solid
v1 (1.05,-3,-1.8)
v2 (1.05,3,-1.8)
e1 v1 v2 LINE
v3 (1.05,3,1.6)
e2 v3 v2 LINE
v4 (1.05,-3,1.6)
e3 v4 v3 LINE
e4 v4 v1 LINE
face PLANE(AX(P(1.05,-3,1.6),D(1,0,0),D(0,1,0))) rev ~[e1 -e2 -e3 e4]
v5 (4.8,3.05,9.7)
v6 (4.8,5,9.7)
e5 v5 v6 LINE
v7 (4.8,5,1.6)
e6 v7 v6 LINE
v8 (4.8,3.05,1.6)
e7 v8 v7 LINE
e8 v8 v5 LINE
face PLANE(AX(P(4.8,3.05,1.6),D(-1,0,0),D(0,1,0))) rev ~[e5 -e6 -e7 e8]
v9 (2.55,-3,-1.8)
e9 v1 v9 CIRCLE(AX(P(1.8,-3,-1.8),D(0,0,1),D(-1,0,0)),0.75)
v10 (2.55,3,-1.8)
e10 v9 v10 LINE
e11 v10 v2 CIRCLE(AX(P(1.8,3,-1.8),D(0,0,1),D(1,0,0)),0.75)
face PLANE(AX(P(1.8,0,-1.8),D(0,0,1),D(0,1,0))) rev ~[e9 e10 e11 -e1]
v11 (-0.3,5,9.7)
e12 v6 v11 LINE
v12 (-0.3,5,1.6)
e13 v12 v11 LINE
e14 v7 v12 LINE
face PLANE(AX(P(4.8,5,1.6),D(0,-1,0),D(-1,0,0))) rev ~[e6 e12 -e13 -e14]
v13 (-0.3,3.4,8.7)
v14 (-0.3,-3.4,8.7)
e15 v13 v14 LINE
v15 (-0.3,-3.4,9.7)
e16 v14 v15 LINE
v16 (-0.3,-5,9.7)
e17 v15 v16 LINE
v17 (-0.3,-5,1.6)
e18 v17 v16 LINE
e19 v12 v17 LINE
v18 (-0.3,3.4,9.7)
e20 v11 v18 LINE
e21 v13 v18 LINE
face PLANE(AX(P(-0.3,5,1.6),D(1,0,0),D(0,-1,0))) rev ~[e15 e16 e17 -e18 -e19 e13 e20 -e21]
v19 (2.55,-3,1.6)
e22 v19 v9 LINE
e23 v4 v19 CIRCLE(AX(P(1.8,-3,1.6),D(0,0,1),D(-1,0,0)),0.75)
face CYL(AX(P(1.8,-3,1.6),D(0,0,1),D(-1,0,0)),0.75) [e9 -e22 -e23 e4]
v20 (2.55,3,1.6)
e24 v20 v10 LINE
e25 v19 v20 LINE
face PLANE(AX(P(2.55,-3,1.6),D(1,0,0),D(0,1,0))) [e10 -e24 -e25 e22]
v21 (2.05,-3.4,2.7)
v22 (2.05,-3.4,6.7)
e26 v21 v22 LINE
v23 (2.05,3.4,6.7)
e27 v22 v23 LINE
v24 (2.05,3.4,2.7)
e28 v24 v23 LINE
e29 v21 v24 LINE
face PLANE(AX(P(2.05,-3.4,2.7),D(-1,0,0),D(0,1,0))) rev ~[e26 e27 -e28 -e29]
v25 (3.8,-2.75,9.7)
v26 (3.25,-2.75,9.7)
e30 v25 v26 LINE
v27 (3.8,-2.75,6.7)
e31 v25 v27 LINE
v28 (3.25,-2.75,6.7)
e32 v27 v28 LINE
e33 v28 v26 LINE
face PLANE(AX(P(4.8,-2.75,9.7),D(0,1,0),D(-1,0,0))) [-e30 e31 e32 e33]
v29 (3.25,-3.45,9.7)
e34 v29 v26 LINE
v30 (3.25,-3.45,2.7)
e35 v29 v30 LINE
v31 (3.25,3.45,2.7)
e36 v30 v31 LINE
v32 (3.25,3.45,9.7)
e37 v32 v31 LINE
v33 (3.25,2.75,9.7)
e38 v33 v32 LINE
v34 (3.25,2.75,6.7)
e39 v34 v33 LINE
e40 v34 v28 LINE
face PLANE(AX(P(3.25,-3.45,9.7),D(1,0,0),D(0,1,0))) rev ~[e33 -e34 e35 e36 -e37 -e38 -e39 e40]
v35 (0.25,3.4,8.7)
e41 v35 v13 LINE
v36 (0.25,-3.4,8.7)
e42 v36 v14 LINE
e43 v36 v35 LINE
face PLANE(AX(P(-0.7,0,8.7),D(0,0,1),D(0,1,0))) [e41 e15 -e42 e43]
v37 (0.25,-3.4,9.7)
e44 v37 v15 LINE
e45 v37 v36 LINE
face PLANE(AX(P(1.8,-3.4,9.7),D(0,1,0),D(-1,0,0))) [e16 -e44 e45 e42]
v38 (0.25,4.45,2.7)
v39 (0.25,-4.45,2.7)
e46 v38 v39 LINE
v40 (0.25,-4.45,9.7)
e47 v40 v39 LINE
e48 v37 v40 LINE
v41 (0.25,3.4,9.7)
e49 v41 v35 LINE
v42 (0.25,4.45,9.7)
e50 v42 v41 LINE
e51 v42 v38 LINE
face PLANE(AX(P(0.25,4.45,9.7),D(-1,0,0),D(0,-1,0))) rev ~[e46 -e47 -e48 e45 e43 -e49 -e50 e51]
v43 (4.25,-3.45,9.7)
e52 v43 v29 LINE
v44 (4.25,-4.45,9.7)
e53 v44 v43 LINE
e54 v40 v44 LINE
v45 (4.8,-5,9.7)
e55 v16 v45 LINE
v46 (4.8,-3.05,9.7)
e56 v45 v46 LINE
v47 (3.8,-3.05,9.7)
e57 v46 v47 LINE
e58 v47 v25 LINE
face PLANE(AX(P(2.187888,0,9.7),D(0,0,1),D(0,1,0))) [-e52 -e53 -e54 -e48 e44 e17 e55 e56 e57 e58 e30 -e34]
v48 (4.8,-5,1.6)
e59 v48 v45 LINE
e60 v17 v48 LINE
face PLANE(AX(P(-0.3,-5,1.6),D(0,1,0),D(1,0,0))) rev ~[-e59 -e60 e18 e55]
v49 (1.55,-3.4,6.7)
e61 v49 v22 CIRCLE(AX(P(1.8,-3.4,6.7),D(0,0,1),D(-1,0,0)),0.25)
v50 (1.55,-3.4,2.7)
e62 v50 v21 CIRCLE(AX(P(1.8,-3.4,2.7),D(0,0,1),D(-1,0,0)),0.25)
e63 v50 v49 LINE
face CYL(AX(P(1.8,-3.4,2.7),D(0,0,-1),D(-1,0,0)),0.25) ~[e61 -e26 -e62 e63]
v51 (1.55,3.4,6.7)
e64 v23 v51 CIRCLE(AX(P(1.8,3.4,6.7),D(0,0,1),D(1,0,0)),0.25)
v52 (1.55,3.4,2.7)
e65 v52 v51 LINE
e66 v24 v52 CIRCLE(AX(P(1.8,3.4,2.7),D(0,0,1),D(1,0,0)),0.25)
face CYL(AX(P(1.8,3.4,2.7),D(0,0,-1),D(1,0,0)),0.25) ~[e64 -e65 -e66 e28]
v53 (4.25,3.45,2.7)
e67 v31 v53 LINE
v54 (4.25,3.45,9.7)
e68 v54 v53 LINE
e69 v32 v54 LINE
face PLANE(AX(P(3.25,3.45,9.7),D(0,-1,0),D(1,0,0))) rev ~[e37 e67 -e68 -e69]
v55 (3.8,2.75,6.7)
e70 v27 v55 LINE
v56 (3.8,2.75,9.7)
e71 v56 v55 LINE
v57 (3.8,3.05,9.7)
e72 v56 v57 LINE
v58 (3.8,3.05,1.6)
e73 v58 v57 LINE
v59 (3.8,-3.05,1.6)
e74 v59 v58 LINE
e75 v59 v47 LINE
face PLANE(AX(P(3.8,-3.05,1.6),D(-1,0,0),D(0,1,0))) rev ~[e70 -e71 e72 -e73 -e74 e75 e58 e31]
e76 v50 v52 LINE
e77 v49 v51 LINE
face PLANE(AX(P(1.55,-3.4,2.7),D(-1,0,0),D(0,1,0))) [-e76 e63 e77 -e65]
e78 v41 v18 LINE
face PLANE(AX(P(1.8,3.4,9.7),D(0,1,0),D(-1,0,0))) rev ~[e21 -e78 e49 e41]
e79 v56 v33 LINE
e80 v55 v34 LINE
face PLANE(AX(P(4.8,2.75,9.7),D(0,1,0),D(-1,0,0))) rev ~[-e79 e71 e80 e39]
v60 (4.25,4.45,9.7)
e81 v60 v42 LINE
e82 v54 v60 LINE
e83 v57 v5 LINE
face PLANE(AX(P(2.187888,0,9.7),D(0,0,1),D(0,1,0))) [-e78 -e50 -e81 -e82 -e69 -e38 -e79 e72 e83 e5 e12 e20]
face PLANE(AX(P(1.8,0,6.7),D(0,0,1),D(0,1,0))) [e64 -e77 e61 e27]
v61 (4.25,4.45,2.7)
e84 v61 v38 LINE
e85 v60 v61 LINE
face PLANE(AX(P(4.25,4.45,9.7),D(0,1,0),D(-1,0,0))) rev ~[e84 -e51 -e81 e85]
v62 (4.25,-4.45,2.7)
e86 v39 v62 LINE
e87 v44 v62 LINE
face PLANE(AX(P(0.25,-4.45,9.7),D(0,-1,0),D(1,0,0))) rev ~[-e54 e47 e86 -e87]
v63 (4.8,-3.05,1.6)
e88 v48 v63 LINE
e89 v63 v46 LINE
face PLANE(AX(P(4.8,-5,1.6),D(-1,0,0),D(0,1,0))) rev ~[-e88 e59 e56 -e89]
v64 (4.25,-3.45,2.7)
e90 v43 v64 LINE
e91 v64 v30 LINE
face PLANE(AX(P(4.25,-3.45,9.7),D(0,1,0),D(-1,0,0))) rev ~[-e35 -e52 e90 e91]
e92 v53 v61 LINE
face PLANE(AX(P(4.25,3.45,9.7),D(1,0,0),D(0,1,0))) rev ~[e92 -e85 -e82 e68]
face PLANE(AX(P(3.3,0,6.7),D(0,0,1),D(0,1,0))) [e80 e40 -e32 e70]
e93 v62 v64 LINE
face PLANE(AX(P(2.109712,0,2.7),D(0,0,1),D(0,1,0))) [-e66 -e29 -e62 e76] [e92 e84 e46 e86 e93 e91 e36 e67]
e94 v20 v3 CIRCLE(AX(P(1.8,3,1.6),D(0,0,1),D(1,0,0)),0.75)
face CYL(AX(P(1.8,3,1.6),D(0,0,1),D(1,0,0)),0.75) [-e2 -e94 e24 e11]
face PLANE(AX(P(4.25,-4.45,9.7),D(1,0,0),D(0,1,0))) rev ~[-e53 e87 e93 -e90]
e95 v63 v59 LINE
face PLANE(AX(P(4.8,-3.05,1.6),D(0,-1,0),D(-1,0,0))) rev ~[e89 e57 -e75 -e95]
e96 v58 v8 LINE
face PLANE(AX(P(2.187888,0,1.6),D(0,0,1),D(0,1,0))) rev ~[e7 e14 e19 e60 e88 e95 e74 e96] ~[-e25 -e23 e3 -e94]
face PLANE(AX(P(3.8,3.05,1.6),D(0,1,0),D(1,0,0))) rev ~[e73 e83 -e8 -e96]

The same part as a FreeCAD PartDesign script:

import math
import FreeCAD as App
import Part
import Sketcher

V = App.Vector

doc = App.newDocument("Part")
body = doc.addObject("PartDesign::Body", "Body")

# Sketch on XY plane
sketch1 = body.newObject("Sketcher::SketchObject", "Sketch")
sketch1.AttachmentSupport = (doc.getObject("XY_Plane"), [""])
sketch1.MapMode = "FlatFace"
sketch1.addGeometry(Part.LineSegment(V(-5, 0, 0), V(-3, 0, 0)), False)
sketch1.addGeometry(Part.LineSegment(V(-3, 0, 0), V(-3, 1, 0)), False)
sketch1.addGeometry(Part.LineSegment(V(-3, 1, 0), V(3, 1, 0)), False)
sketch1.addGeometry(Part.LineSegment(V(3, 1, 0), V(3, 0, 0)), False)
sketch1.addGeometry(Part.LineSegment(V(3, 0, 0), V(5, 0, 0)), False)
sketch1.addGeometry(Part.LineSegment(V(5, 0, 0), V(5, 5.1, 0)), False)
sketch1.addGeometry(Part.LineSegment(V(5, 5.1, 0), V(-5, 5.1, 0)), False)
sketch1.addGeometry(Part.LineSegment(V(-5, 5.1, 0), V(-5, 0, 0)), False)
sketch1.addConstraint(Sketcher.Constraint("Coincident", 0, 2, 1, 1))
sketch1.addConstraint(Sketcher.Constraint("Coincident", 1, 2, 2, 1))
sketch1.addConstraint(Sketcher.Constraint("Coincident", 2, 2, 3, 1))
sketch1.addConstraint(Sketcher.Constraint("Coincident", 3, 2, 4, 1))
sketch1.addConstraint(Sketcher.Constraint("Coincident", 4, 2, 5, 1))
sketch1.addConstraint(Sketcher.Constraint("Coincident", 5, 2, 6, 1))
sketch1.addConstraint(Sketcher.Constraint("Coincident", 6, 2, 7, 1))
sketch1.addConstraint(Sketcher.Constraint("Coincident", 7, 2, 0, 1))
sketch1.addConstraint(Sketcher.Constraint("Horizontal", 0))
sketch1.addConstraint(Sketcher.Constraint("Vertical", 1))
sketch1.addConstraint(Sketcher.Constraint("Horizontal", 2))
sketch1.addConstraint(Sketcher.Constraint("Vertical", 3))
sketch1.addConstraint(Sketcher.Constraint("Horizontal", 4))
sketch1.addConstraint(Sketcher.Constraint("Vertical", 5))
sketch1.addConstraint(Sketcher.Constraint("Horizontal", 6))
sketch1.addConstraint(Sketcher.Constraint("Vertical", 7))
sketch1.addConstraint(Sketcher.Constraint("Symmetric", 0, 2, 3, 2, -1, 1))
sketch1.addConstraint(Sketcher.Constraint("Symmetric", 4, 2, 7, 2, -2))
sketch1.addConstraint(Sketcher.Constraint("DistanceX", 6, 2, 6, 1, 10.0))
sketch1.addConstraint(Sketcher.Constraint("DistanceY", 1, 1, 1, 2, 1.0))
sketch1.addConstraint(Sketcher.Constraint("DistanceX", 2, 1, 2, 2, 6.1))
sketch1.addConstraint(Sketcher.Constraint("DistanceY", 5, 1, 5, 2, 5.1))
pad1 = body.newObject("PartDesign::Pad", "Pad")
pad1.Profile = sketch1
pad1.Length = 8.1

# Sketch on XY plane
sketch2 = body.newObject("Sketcher::SketchObject", "Sketch001")
sketch2.AttachmentSupport = (doc.getObject("XY_Plane"), [""])
sketch2.MapMode = "FlatFace"
sketch2.AttachmentOffset = App.Placement(V(0, 0, 8.1), App.Rotation())
sketch2.addGeometry(Part.LineSegment(V(-4.5, 0.6, 0), V(-3.5, 0.6, 0)), False)
sketch2.addGeometry(Part.LineSegment(V(-3.5, 0.6, 0), V(-3.5, 1.6, 0)), False)
sketch2.addGeometry(Part.LineSegment(V(-3.5, 1.6, 0), V(3.5, 1.6, 0)), False)
sketch2.addGeometry(Part.LineSegment(V(3.5, 1.6, 0), V(3.5, 0.6, 0)), False)
sketch2.addGeometry(Part.LineSegment(V(3.5, 0.6, 0), V(4.5, 0.6, 0)), False)
sketch2.addGeometry(Part.LineSegment(V(4.5, 0.6, 0), V(4.5, 4.5, 0)), False)
sketch2.addGeometry(Part.LineSegment(V(4.5, 4.5, 0), V(-4.5, 4.5, 0)), False)
sketch2.addGeometry(Part.LineSegment(V(-4.5, 4.5, 0), V(-4.5, 0.6, 0)), False)
sketch2.addConstraint(Sketcher.Constraint("Coincident", 0, 2, 1, 1))
sketch2.addConstraint(Sketcher.Constraint("Coincident", 1, 2, 2, 1))
sketch2.addConstraint(Sketcher.Constraint("Coincident", 2, 2, 3, 1))
sketch2.addConstraint(Sketcher.Constraint("Coincident", 3, 2, 4, 1))
sketch2.addConstraint(Sketcher.Constraint("Coincident", 4, 2, 5, 1))
sketch2.addConstraint(Sketcher.Constraint("Coincident", 5, 2, 6, 1))
sketch2.addConstraint(Sketcher.Constraint("Coincident", 6, 2, 7, 1))
sketch2.addConstraint(Sketcher.Constraint("Coincident", 7, 2, 0, 1))
sketch2.addConstraint(Sketcher.Constraint("Horizontal", 0))
sketch2.addConstraint(Sketcher.Constraint("Vertical", 1))
sketch2.addConstraint(Sketcher.Constraint("Horizontal", 2))
sketch2.addConstraint(Sketcher.Constraint("Vertical", 3))
sketch2.addConstraint(Sketcher.Constraint("Horizontal", 4))
sketch2.addConstraint(Sketcher.Constraint("Vertical", 5))
sketch2.addConstraint(Sketcher.Constraint("Horizontal", 6))
sketch2.addConstraint(Sketcher.Constraint("Vertical", 7))
sketch2.addConstraint(Sketcher.Constraint("Symmetric", 0, 2, 3, 2, -2))
sketch2.addConstraint(Sketcher.Constraint("Equal", 0, 4))
sketch2.addConstraint(Sketcher.Constraint("Equal", 4, 1))
sketch2.addConstraint(Sketcher.Constraint("DistanceX", 0, 1, 0, 2, 1.0))
sketch2.addConstraint(Sketcher.Constraint("DistanceY", 5, 1, 5, 2, 4.0))
sketch2.addConstraint(Sketcher.Constraint("DistanceX", 2, 1, 2, 2, 6.9))
sketch2.addConstraint(Sketcher.Constraint("DistanceY", -1, 1, 0, 2, 0.55))
pocket1 = body.newObject("PartDesign::Pocket", "Pocket")
pocket1.Profile = sketch2
pocket1.Length = 7

# Sketch on XY plane
sketch3 = body.newObject("Sketcher::SketchObject", "Sketch002")
sketch3.AttachmentSupport = (doc.getObject("XY_Plane"), [""])
sketch3.MapMode = "FlatFace"
sketch3.AttachmentOffset = App.Placement(V(0, 0, 8.1), App.Rotation())
sketch3.addGeometry(Part.LineSegment(V(-3, 8, 0), V(-3, 3, 0)), False)
sketch3.addGeometry(Part.LineSegment(V(-3, 3, 0), V(3, 3, 0)), False)
sketch3.addGeometry(Part.LineSegment(V(3, 3, 0), V(3, 8, 0)), False)
sketch3.addGeometry(Part.LineSegment(V(3, 8, 0), V(-3, 8, 0)), False)
sketch3.addConstraint(Sketcher.Constraint("Coincident", 0, 2, 1, 1))
sketch3.addConstraint(Sketcher.Constraint("Coincident", 1, 2, 2, 1))
sketch3.addConstraint(Sketcher.Constraint("Coincident", 2, 2, 3, 1))
sketch3.addConstraint(Sketcher.Constraint("Coincident", 3, 2, 0, 1))
sketch3.addConstraint(Sketcher.Constraint("Vertical", 0))
sketch3.addConstraint(Sketcher.Constraint("Horizontal", 1))
sketch3.addConstraint(Sketcher.Constraint("Vertical", 2))
sketch3.addConstraint(Sketcher.Constraint("Horizontal", 3))
sketch3.addConstraint(Sketcher.Constraint("DistanceY", 0, 2, 0, 1, 5.0))
sketch3.addConstraint(Sketcher.Constraint("DistanceX", 1, 1, 1, 2, 6.8))
sketch3.addConstraint(Sketcher.Constraint("DistanceY", -1, 1, 0, 2, 3.0))
sketch3.addConstraint(Sketcher.Constraint("DistanceX", 0, 2, -1, 1, 3.4))
pocket2 = body.newObject("PartDesign::Pocket", "Pocket001")
pocket2.Profile = sketch3
pocket2.Length = 1

# Sketch on XY plane
sketch4 = body.newObject("Sketcher::SketchObject", "Sketch003")
sketch4.AttachmentSupport = (doc.getObject("XY_Plane"), [""])
sketch4.MapMode = "FlatFace"
sketch4.AttachmentOffset = App.Placement(V(0, 0, 8.1), App.Rotation())
sketch4.addGeometry(Part.LineSegment(V(-2.8, 3, 0), V(-2.8, 0, 0)), False)
sketch4.addGeometry(Part.LineSegment(V(-2.8, 0, 0), V(2.8, 0, 0)), False)
sketch4.addGeometry(Part.LineSegment(V(2.8, 0, 0), V(2.8, 3, 0)), False)
sketch4.addGeometry(Part.LineSegment(V(2.8, 3, 0), V(-2.8, 3, 0)), False)
sketch4.addConstraint(Sketcher.Constraint("Coincident", 0, 2, 1, 1))
sketch4.addConstraint(Sketcher.Constraint("Coincident", 1, 2, 2, 1))
sketch4.addConstraint(Sketcher.Constraint("Coincident", 2, 2, 3, 1))
sketch4.addConstraint(Sketcher.Constraint("Coincident", 3, 2, 0, 1))
sketch4.addConstraint(Sketcher.Constraint("Vertical", 0))
sketch4.addConstraint(Sketcher.Constraint("Horizontal", 1))
sketch4.addConstraint(Sketcher.Constraint("Vertical", 2))
sketch4.addConstraint(Sketcher.Constraint("Horizontal", 3))
sketch4.addConstraint(Sketcher.Constraint("Symmetric", 0, 2, 1, 2, -1, 1))
sketch4.addConstraint(Sketcher.Constraint("DistanceY", 0, 2, 0, 1, 3.0))
sketch4.addConstraint(Sketcher.Constraint("DistanceX", 1, 1, 1, 2, 5.5))
pocket3 = body.newObject("PartDesign::Pocket", "Pocket002")
pocket3.Profile = sketch4
pocket3.Length = 3

# Sketch on XY plane
sketch5 = body.newObject("Sketcher::SketchObject", "Sketch004")
sketch5.AttachmentSupport = (doc.getObject("XY_Plane"), [""])
sketch5.MapMode = "FlatFace"
sketch5.AttachmentOffset = App.Placement(V(0, 0, 1.1), App.Rotation())
sketch5.addGeometry(Part.ArcOfCircle(Part.Circle(V(-3.4, 3, 0), V(0, 0, 1), 0.25), math.radians(90), math.radians(270)), False)
sketch5.addGeometry(Part.LineSegment(V(-3.4, 2.75, 0), V(3.4, 2.75, 0)), False)
sketch5.addGeometry(Part.ArcOfCircle(Part.Circle(V(3.4, 3, 0), V(0, 0, 1), 0.25), math.radians(-90), math.radians(90)), False)
sketch5.addGeometry(Part.LineSegment(V(3.4, 3.25, 0), V(-3.4, 3.25, 0)), False)
sketch5.addConstraint(Sketcher.Constraint("Tangent", 0, 2, 1, 1))
sketch5.addConstraint(Sketcher.Constraint("Tangent", 1, 2, 2, 1))
sketch5.addConstraint(Sketcher.Constraint("Tangent", 2, 2, 3, 1))
sketch5.addConstraint(Sketcher.Constraint("Tangent", 3, 2, 0, 1))
sketch5.addConstraint(Sketcher.Constraint("Horizontal", 1))
sketch5.addConstraint(Sketcher.Constraint("Horizontal", 3))
sketch5.addConstraint(Sketcher.Constraint("Radius", 0, 0.25))
sketch5.addConstraint(Sketcher.Constraint("DistanceX", 1, 1, 1, 2, 6.8))
sketch5.addConstraint(Sketcher.Constraint("DistanceY", -1, 1, 0, 3, 3.0))
sketch5.addConstraint(Sketcher.Constraint("DistanceX", 0, 3, -1, 1, 3.4))
pad2 = body.newObject("PartDesign::Pad", "Pad001")
pad2.Profile = sketch5
pad2.Length = 4

# Sketch on XY plane
sketch6 = body.newObject("Sketcher::SketchObject", "Sketch005")
sketch6.AttachmentSupport = (doc.getObject("XY_Plane"), [""])
sketch6.MapMode = "FlatFace"
sketch6.addGeometry(Part.ArcOfCircle(Part.Circle(V(-3, 3, 0), V(0, 0, 1), 0.8), math.radians(90), math.radians(270)), False)
sketch6.addGeometry(Part.LineSegment(V(-3, 2.2, 0), V(3, 2.2, 0)), False)
sketch6.addGeometry(Part.ArcOfCircle(Part.Circle(V(3, 3, 0), V(0, 0, 1), 0.8), math.radians(-90), math.radians(90)), False)
sketch6.addGeometry(Part.LineSegment(V(3, 3.8, 0), V(-3, 3.8, 0)), False)
sketch6.addConstraint(Sketcher.Constraint("Tangent", 0, 2, 1, 1))
sketch6.addConstraint(Sketcher.Constraint("Tangent", 1, 2, 2, 1))
sketch6.addConstraint(Sketcher.Constraint("Tangent", 2, 2, 3, 1))
sketch6.addConstraint(Sketcher.Constraint("Tangent", 3, 2, 0, 1))
sketch6.addConstraint(Sketcher.Constraint("Horizontal", 1))
sketch6.addConstraint(Sketcher.Constraint("Horizontal", 3))
sketch6.addConstraint(Sketcher.Constraint("DistanceX", 1, 1, 1, 2, 6.0))
sketch6.addConstraint(Sketcher.Constraint("Radius", 0, 0.75))
sketch6.addConstraint(Sketcher.Constraint("DistanceX", 0, 3, -1, 1, 3.0))
sketch6.addConstraint(Sketcher.Constraint("DistanceY", -1, 1, 0, 3, 3.0))
pad3 = body.newObject("PartDesign::Pad", "Pad002")
pad3.Profile = sketch6
pad3.Length = 3.4
pad3.Reversed = True
body2 = doc.addObject("PartDesign::Body", "Body001")
doc.recompute()

body.Placement = App.Placement(V(-13.8, 0, 1.6), App.Rotation(V(0, 0, 1), 90))
boolean = body2.newObject("PartDesign::Boolean", "Boolean")
boolean.Type = "Fuse"
boolean.addObjects([body])
body3 = doc.addObject("PartDesign::Body", "Body002")
doc.recompute()

body2.Placement = App.Placement(V(-0.2, 0, 0), App.Rotation(V(0, 0, 1), 0))
boolean2 = body3.newObject("PartDesign::Boolean", "Boolean001")
boolean2.Type = "Fuse"
boolean2.addObjects([body2])
body4 = doc.addObject("PartDesign::Body", "Body003")
doc.recompute()

body3.Placement = App.Placement(V(18.8, 0, 0), App.Rotation(V(0, 0, 1), 0))
boolean3 = body4.newObject("PartDesign::Boolean", "Boolean002")
boolean3.Type = "Fuse"
boolean3.addObjects([body3])

doc.recompute()
